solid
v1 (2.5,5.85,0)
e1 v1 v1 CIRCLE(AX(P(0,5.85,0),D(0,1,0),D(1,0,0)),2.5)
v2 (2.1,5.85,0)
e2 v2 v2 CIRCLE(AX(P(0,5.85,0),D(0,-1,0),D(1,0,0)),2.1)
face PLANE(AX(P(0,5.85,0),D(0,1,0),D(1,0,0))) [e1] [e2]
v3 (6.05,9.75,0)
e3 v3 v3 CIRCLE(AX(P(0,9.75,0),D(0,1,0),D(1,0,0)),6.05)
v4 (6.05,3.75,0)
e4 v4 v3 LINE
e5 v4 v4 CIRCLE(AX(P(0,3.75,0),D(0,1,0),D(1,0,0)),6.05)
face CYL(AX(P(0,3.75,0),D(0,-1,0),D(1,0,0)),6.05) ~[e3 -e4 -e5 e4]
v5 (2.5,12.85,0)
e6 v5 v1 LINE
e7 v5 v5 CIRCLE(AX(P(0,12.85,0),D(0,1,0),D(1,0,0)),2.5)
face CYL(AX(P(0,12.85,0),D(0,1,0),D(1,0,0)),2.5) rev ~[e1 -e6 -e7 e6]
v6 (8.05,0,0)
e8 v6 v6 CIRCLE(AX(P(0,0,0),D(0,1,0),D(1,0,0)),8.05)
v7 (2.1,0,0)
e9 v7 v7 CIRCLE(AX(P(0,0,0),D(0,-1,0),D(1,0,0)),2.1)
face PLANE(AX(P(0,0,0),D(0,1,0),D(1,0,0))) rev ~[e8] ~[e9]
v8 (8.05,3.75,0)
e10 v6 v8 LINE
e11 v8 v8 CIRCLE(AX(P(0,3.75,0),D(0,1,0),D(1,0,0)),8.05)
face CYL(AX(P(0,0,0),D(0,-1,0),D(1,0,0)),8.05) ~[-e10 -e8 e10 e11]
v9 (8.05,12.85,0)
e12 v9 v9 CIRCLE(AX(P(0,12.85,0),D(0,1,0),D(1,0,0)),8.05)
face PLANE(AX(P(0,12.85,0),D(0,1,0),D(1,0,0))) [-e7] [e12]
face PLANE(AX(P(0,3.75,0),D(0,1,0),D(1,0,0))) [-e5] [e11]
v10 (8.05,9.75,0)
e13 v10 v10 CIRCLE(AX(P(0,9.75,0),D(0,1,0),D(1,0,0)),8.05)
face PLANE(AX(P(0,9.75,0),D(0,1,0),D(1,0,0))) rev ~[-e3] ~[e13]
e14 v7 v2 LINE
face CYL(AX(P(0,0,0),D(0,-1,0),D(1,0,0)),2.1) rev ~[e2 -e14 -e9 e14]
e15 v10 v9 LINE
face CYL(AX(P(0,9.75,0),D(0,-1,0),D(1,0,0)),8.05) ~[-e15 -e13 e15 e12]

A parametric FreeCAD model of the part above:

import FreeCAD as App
import Part
import Sketcher

V = App.Vector
Q = App.Units.Quantity

doc = App.newDocument("Part")
params = doc.addObject("Spreadsheet::Sheet", "Params")
for row, (alias, value) in enumerate([
    ("sketch1_diameter", "16.1 mm"),
    ("pad1_length", "3.75 mm"),
    ("sketch2_diameter", "12.1 mm"),
    ("pad2_length", "6 mm"),
    ("sketch3_diameter", "16.1 mm"),
    ("pad3_length", "3.1 mm"),
    ("sketch4_diameter", "4.2 mm"),
    ("pocket1_length", "6 mm"),
    ("sketch5_diameter", "5 mm"),
    ("pocket2_length", "7 mm"),
], start=1):
    params.set(f"A{row}", alias)
    params.set(f"B{row}", "=" + value)
    params.setAlias(f"B{row}", alias)

body = doc.addObject("PartDesign::Body", "Body")

# Sketch on XZ plane
sketch1 = body.newObject("Sketcher::SketchObject", "Sketch")
sketch1.AttachmentSupport = (doc.getObject("XZ_Plane"), [""])
sketch1.MapMode = "FlatFace"
sketch1.addGeometry(Part.Circle(V(0, 0, 0), V(0, 0, 1), 8), False)
sketch1.addConstraint([
    Sketcher.Constraint("Coincident", 0, 3, -1, 1),
    Sketcher.Constraint("Diameter", 0, Q("16.1 mm")),
])
sketch1.setExpression("Constraints[1]", "Params.sketch1_diameter")
pad1 = body.newObject("PartDesign::Pad", "Pad")
pad1.Profile = sketch1
pad1.setExpression("Length", "Params.pad1_length")
pad1.Reversed = True

# Sketch on XZ plane
sketch2 = body.newObject("Sketcher::SketchObject", "Sketch001")
sketch2.AttachmentSupport = (doc.getObject("XZ_Plane"), [""])
sketch2.MapMode = "FlatFace"
sketch2.AttachmentOffset = App.Placement(V(0, 0, -3.75), App.Rotation())
sketch2.addGeometry(Part.Circle(V(0, 0, 0), V(0, 0, 1), 6), False)
sketch2.addConstraint([
    Sketcher.Constraint("Coincident", 0, 3, -1, 1),
    Sketcher.Constraint("Diameter", 0, Q("12.1 mm")),
])
sketch2.setExpression("Constraints[1]", "Params.sketch2_diameter")
pad2 = body.newObject("PartDesign::Pad", "Pad001")
pad2.Profile = sketch2
pad2.setExpression("Length", "Params.pad2_length")
pad2.Reversed = True

# Sketch on XZ plane
sketch3 = body.newObject("Sketcher::SketchObject", "Sketch002")
sketch3.AttachmentSupport = (doc.getObject("XZ_Plane"), [""])
sketch3.MapMode = "FlatFace"
sketch3.AttachmentOffset = App.Placement(V(0, 0, -9.75), App.Rotation())
sketch3.addGeometry(Part.Circle(V(0, 0, 0), V(0, 0, 1), 8), False)
sketch3.addConstraint([
    Sketcher.Constraint("Coincident", 0, 3, -1, 1),
    Sketcher.Constraint("Diameter", 0, Q("16.1 mm")),
])
sketch3.setExpression("Constraints[1]", "Params.sketch3_diameter")
pad3 = body.newObject("PartDesign::Pad", "Pad002")
pad3.Profile = sketch3
pad3.setExpression("Length", "Params.pad3_length")
pad3.Reversed = True

# Sketch on XZ plane
sketch4 = body.newObject("Sketcher::SketchObject", "Sketch003")
sketch4.AttachmentSupport = (doc.getObject("XZ_Plane"), [""])
sketch4.MapMode = "FlatFace"
sketch4.addGeometry(Part.Circle(V(0, 0, 0), V(0, 0, 1), 2.1), False)
sketch4.addConstraint([
    Sketcher.Constraint("Coincident", 0, 3, -1, 1),
    Sketcher.Constraint("Diameter", 0, Q("4.2 mm")),
])
sketch4.setExpression("Constraints[1]", "Params.sketch4_diameter")
pocket1 = body.newObject("PartDesign::Pocket", "Pocket")
pocket1.Profile = sketch4
pocket1.setExpression("Length", "Params.pocket1_length")

# Sketch on XZ plane
sketch5 = body.newObject("Sketcher::SketchObject", "Sketch004")
sketch5.AttachmentSupport = (doc.getObject("XZ_Plane"), [""])
sketch5.MapMode = "FlatFace"
sketch5.AttachmentOffset = App.Placement(V(0, 0, -12.85), App.Rotation())
sketch5.addGeometry(Part.Circle(V(0, 0, 0), V(0, 0, 1), 2.5), False)
sketch5.addConstraint([
    Sketcher.Constraint("Coincident", 0, 3, -1, 1),
    Sketcher.Constraint("Diameter", 0, Q("5 mm")),
])
sketch5.setExpression("Constraints[1]", "Params.sketch5_diameter")
pocket2 = body.newObject("PartDesign::Pocket", "Pocket001")
pocket2.Profile = sketch5
pocket2.setExpression("Length", "Params.pocket2_length")
pocket2.Reversed = True

doc.recompute()
